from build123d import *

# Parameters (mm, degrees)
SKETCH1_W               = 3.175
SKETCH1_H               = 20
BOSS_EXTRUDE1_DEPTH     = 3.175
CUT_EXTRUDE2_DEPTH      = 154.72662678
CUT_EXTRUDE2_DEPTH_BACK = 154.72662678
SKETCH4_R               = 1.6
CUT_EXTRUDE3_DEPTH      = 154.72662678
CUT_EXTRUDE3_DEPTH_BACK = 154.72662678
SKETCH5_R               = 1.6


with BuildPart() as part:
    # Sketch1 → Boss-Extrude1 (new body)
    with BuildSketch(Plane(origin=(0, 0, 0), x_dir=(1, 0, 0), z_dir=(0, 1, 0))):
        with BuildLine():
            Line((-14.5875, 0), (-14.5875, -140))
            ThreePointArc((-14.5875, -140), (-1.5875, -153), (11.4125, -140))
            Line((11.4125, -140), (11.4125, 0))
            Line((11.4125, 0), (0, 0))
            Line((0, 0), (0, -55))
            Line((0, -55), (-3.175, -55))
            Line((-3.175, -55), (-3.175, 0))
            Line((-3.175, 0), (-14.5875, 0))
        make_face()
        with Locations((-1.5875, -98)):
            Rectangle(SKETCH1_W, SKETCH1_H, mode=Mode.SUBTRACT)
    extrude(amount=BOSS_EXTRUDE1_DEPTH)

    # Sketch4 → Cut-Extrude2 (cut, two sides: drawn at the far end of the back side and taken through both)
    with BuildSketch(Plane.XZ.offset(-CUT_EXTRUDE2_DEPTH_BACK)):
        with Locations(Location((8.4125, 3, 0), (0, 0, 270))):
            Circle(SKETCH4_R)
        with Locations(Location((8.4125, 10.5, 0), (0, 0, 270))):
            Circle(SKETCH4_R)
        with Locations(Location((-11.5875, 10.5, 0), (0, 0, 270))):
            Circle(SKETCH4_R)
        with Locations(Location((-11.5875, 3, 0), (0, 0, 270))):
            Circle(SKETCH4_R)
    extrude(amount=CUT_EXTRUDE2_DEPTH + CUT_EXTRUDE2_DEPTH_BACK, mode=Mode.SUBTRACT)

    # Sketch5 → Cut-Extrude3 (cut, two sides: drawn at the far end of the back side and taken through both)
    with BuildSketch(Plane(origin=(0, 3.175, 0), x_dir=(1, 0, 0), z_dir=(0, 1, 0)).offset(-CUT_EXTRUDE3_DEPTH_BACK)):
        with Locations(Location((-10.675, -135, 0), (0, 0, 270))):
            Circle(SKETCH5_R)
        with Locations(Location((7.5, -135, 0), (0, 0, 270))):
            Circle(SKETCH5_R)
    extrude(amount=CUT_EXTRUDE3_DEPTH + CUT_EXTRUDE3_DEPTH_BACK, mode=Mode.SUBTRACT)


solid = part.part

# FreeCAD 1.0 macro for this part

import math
import FreeCAD as App
import Part
import Sketcher
from FreeCAD import Vector

doc = App.newDocument("Part")
body = doc.addObject("PartDesign::Body", "Body")

# Sketch on XZ plane
sketch1 = body.newObject("Sketcher::SketchObject", "Sketch")
sketch1.AttachmentSupport = (doc.getObject("XZ_Plane"), [""])
sketch1.MapMode = "FlatFace"
sketch1.addGeometry([
    Part.LineSegment(Vector(-14.6, 0, 0), Vector(-14.6, 140, 0)),  # 0
    Part.ArcOfCircle(Part.Circle(Vector(-1.6, 140, 0), Vector(0, 0, 1), 13), math.radians(0), math.radians(180)),  # 1
    Part.LineSegment(Vector(11.4, 140, 0), Vector(11.4, 0, 0)),  # 2
    Part.LineSegment(Vector(11.4, 0, 0), Vector(0, 0, 0)),  # 3
    Part.LineSegment(Vector(0, 0, 0), Vector(0, 55, 0)),  # 4
    Part.LineSegment(Vector(0, 55, 0), Vector(-3.2, 55, 0)),  # 5
    Part.LineSegment(Vector(-3.2, 55, 0), Vector(-3.2, 0, 0)),  # 6
    Part.LineSegment(Vector(-3.2, 0, 0), Vector(-14.6, 0, 0)),  # 7
    Part.LineSegment(Vector(0, 108, 0), Vector(-3.2, 108, 0)),  # 8
    Part.LineSegment(Vector(-3.2, 108, 0), Vector(-3.2, 88, 0)),  # 9
    Part.LineSegment(Vector(-3.2, 88, 0), Vector(0, 88, 0)),  # 10
    Part.LineSegment(Vector(0, 88, 0), Vector(0, 108, 0)),  # 11
], False)
sketch1.addConstraint([
    Sketcher.Constraint("Tangent", 0, 2, 1, 2),
    Sketcher.Constraint("Tangent", 1, 1, 2, 1),
    Sketcher.Constraint("Coincident", 2, 2, 3, 1),
    Sketcher.Constraint("Coincident", 3, 2, 4, 1),
    Sketcher.Constraint("Coincident", 4, 2, 5, 1),
    Sketcher.Constraint("Coincident", 5, 2, 6, 1),
    Sketcher.Constraint("Coincident", 6, 2, 7, 1),
    Sketcher.Constraint("Coincident", 7, 2, 0, 1),
    Sketcher.Constraint("Coincident", 8, 2, 9, 1),
    Sketcher.Constraint("Coincident", 9, 2, 10, 1),
    Sketcher.Constraint("Coincident", 10, 2, 11, 1),
    Sketcher.Constraint("Coincident", 11, 2, 8, 1),
    Sketcher.Constraint("Vertical", 0),
    Sketcher.Constraint("Vertical", 2),
    Sketcher.Constraint("Horizontal", 3),
    Sketcher.Constraint("Vertical", 4),
    Sketcher.Constraint("Horizontal", 5),
    Sketcher.Constraint("Vertical", 6),
    Sketcher.Constraint("Horizontal", 7),
    Sketcher.Constraint("Horizontal", 8),
    Sketcher.Constraint("Vertical", 9),
    Sketcher.Constraint("Horizontal", 10),
    Sketcher.Constraint("Vertical", 11),
    Sketcher.Constraint("Coincident", 3, 2, -1, 1),
    Sketcher.Constraint("PointOnObject", 6, 2, -1),
    Sketcher.Constraint("PointOnObject", 10, 2, -2),
    Sketcher.Constraint("Vertical", 6, 2, 8, 2),
    Sketcher.Constraint("Equal", 3, 7),
    Sketcher.Constraint("Radius", 1, 13.0),
    Sketcher.Constraint("DistanceY", 0, 1, 0, 2, 140.0),
    Sketcher.Constraint("DistanceY", 4, 1, 4, 2, 55.0),
    Sketcher.Constraint("DistanceY", 9, 2, 9, 1, 20.0),
    Sketcher.Constraint("DistanceY", -1, 1, 8, 2, 108.0),
    Sketcher.Constraint("DistanceX", 5, 2, 5, 1, 3.175),
])
pad1 = body.newObject("PartDesign::Pad", "Pad")
pad1.Profile = sketch1
pad1.Length = 3.175
pad1.Reversed = True

# Sketch on XZ plane
sketch2 = body.newObject("Sketcher::SketchObject", "Sketch001")
sketch2.AttachmentSupport = (doc.getObject("XZ_Plane"), [""])
sketch2.MapMode = "FlatFace"
sketch2.addGeometry([
    Part.Circle(Vector(8.4, 3, 0), Vector(0, 0, 1), 1.6),
    Part.Circle(Vector(8.4, 10.5, 0), Vector(0, 0, 1), 1.6),
    Part.Circle(Vector(-11.6, 10.5, 0), Vector(0, 0, 1), 1.6),
    Part.Circle(Vector(-11.6, 3, 0), Vector(0, 0, 1), 1.6),
], False)
sketch2.addConstraint([
    Sketcher.Constraint("Equal", 0, 1),
    Sketcher.Constraint("Equal", 1, 2),
    Sketcher.Constraint("Equal", 2, 3),
    Sketcher.Constraint("Horizontal", 1, 3, 2, 3),
    Sketcher.Constraint("Horizontal", 0, 3, 3, 3),
    Sketcher.Constraint("Vertical", 0, 3, 1, 3),
    Sketcher.Constraint("Vertical", 2, 3, 3, 3),
    Sketcher.Constraint("Diameter", 0, 3.2),
    Sketcher.Constraint("DistanceY", -1, 1, 0, 3, 3.0),
    Sketcher.Constraint("DistanceX", 2, 3, 1, 3, 20.0),
    Sketcher.Constraint("DistanceY", -1, 1, 1, 3, 10.5),
    Sketcher.Constraint("DistanceX", -1, 1, 0, 3, 8.4125),
])
pocket1 = body.newObject("PartDesign::Pocket", "Pocket")
pocket1.Profile = sketch2
pocket1.Type = "ThroughAll"
pocket1.Midplane = True

# Sketch on XZ plane
sketch3 = body.newObject("Sketcher::SketchObject", "Sketch002")
sketch3.AttachmentSupport = (doc.getObject("XZ_Plane"), [""])
sketch3.MapMode = "FlatFace"
sketch3.AttachmentOffset = App.Placement(Vector(0, 0, -3.175), App.Rotation())
sketch3.addGeometry([
    Part.Circle(Vector(-10.7, 135, 0), Vector(0, 0, 1), 1.6),
    Part.Circle(Vector(7.5, 135, 0), Vector(0, 0, 1), 1.6),
], False)
sketch3.addConstraint([
    Sketcher.Constraint("Equal", 0, 1),
    Sketcher.Constraint("Horizontal", 0, 3, 1, 3),
    Sketcher.Constraint("Diameter", 0, 3.2),
    Sketcher.Constraint("DistanceY", -1, 1, 0, 3, 135.0),
    Sketcher.Constraint("DistanceX", -1, 1, 1, 3, 7.5),
    Sketcher.Constraint("DistanceX", 0, 3, -1, 1, 10.675),
])
pocket2 = body.newObject("PartDesign::Pocket", "Pocket001")
pocket2.Profile = sketch3
pocket2.Type = "ThroughAll"
pocket2.Midplane = True

doc.recompute()
